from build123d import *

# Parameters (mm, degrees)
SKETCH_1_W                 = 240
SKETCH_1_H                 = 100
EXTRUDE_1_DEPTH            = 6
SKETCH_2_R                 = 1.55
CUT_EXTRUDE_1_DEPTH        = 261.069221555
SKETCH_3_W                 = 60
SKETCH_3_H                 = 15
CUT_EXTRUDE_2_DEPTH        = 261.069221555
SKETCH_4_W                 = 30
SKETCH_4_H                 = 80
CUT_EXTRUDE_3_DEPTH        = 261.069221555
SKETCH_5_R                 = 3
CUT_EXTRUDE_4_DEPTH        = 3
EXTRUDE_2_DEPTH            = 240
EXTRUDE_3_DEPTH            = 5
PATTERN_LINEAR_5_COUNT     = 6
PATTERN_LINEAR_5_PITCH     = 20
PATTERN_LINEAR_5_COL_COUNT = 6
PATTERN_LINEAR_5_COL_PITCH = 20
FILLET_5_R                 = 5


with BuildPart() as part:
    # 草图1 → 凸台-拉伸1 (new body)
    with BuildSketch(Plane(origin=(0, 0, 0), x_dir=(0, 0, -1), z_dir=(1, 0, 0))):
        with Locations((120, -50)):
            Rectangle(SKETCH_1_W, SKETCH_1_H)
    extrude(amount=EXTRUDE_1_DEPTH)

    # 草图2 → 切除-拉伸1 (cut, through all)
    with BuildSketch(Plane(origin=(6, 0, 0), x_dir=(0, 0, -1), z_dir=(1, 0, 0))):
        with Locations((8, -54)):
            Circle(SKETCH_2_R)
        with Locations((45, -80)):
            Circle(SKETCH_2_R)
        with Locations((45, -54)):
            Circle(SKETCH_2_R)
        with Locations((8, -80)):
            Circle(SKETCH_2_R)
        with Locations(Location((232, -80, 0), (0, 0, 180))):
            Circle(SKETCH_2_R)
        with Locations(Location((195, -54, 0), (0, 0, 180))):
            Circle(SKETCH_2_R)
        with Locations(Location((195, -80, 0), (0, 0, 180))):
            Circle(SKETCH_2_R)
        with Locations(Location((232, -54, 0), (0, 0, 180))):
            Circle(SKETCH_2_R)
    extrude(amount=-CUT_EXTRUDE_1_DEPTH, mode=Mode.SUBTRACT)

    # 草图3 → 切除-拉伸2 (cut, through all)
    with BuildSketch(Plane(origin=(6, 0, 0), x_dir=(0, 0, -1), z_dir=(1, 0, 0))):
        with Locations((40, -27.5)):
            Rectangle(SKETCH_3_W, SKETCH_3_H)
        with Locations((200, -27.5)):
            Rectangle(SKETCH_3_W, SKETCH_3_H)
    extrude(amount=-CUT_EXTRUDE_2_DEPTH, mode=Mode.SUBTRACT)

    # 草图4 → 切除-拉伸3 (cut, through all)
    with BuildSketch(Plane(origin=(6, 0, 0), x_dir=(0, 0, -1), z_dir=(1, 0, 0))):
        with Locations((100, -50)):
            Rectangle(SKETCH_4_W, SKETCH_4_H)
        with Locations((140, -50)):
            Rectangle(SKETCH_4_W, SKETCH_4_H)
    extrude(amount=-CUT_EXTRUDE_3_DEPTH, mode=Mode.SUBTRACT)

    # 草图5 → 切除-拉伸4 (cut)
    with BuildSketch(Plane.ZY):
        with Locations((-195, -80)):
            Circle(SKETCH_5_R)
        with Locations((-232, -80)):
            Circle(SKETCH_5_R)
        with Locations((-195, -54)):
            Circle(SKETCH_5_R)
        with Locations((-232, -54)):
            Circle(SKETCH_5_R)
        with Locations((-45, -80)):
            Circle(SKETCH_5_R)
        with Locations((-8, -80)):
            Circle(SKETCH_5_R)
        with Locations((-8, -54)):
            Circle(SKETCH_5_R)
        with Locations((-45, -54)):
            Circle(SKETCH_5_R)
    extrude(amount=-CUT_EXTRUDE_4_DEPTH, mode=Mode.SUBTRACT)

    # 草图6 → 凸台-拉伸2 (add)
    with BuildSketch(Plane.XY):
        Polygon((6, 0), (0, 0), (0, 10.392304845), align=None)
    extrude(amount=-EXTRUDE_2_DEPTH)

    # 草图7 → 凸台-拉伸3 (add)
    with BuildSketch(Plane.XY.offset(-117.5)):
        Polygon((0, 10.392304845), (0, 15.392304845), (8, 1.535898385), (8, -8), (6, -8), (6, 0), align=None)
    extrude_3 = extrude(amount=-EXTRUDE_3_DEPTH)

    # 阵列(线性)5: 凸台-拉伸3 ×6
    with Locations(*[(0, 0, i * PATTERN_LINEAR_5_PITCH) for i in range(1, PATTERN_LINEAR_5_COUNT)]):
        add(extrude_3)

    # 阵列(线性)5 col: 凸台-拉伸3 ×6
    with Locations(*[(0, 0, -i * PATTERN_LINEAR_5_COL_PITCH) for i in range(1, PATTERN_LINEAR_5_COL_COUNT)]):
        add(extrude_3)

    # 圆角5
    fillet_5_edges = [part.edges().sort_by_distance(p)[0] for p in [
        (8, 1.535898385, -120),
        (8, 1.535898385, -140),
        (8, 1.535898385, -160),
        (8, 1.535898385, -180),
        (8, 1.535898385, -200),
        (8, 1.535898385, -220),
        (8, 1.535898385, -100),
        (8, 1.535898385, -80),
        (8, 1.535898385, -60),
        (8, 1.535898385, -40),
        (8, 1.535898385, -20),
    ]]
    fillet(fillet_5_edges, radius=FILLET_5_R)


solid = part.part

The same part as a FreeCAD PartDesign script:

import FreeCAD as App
import Part
import Sketcher
from FreeCAD import Vector
Q = App.Units.Quantity


def edges_at(feature, points):
    """Names of the edges that pass closest to the given points."""
    edges = feature.Shape.Edges
    near = lambda p: min(range(len(edges)), key=lambda i: edges[i].distToShape(Part.Vertex(*p))[0])
    return sorted({f"Edge{near(p) + 1}" for p in points})


def add_polygon(sketch, points):
    """Adds a closed chain of lines whose ends are joined by coincident constraints."""
    first, n = sketch.GeometryCount, len(points)
    for a, b in zip(points, points[1:] + points[:1]):
        sketch.addGeometry(Part.LineSegment(App.Vector(*a, 0), App.Vector(*b, 0)), False)
    for i in range(n):
        sketch.addConstraint(Sketcher.Constraint("Coincident", first + i, 2, first + (i + 1) % n, 1))

doc = App.newDocument("Part")
params = doc.addObject("Spreadsheet::Sheet", "Params")
for row, (alias, value) in enumerate([
    ("sketch1_width", "100 mm"),
    ("sketch1_height", "240 mm"),
    ("pad1_length", "6 mm"),
    ("sketch2_diameter", "3.1 mm"),
    ("sketch3_width", "15 mm"),
    ("sketch3_height", "60 mm"),
    ("sketch4_width", "80 mm"),
    ("sketch4_height", "30 mm"),
    ("sketch5_diameter", "6 mm"),
    ("pocket4_length", "3 mm"),
    ("sketch6_width", "6 mm"),
    ("pad2_length", "240 mm"),
    ("sketch7_width", "2 mm"),
    ("sketch7_height", "5 mm"),
    ("sketch7_height2", "8 mm"),
    ("sketch7_length", "12 mm"),
    ("pad3_length", "5 mm"),
    ("linearpattern_pitch", "20 mm"),
    ("linearpattern2_pitch", "20 mm"),
    ("fillet_radius", "5 mm"),
], start=1):
    params.set(f"A{row}", alias)
    params.set(f"B{row}", "=" + value)
    params.setAlias(f"B{row}", alias)

body = doc.addObject("PartDesign::Body", "Body")

# Sketch on YZ plane
sketch1 = body.newObject("Sketcher::SketchObject", "Sketch")
sketch1.AttachmentSupport = (doc.getObject("YZ_Plane"), [""])
sketch1.MapMode = "FlatFace"
add_polygon(sketch1, [(0, 0), (-100, 0), (-100, -240), (0, -240)])  # lines 0-3
sketch1.addConstraint([
    Sketcher.Constraint("Horizontal", 0),
    Sketcher.Constraint("Vertical", 1),
    Sketcher.Constraint("Horizontal", 2),
    Sketcher.Constraint("Vertical", 3),
    Sketcher.Constraint("Coincident", 3, 2, -1, 1),
    Sketcher.Constraint("DistanceX", 0, 2, 0, 1, 100.0),
    Sketcher.Constraint("DistanceY", 1, 2, 1, 1, 240.0),
])
sketch1.setExpression("Constraints[9]", "Params.sketch1_width")
sketch1.setExpression("Constraints[10]", "Params.sketch1_height")
pad1 = body.newObject("PartDesign::Pad", "Pad")
pad1.Profile = sketch1
pad1.setExpression("Length", "Params.pad1_length")

# Sketch on YZ plane
sketch2 = body.newObject("Sketcher::SketchObject", "Sketch001")
sketch2.AttachmentSupport = (doc.getObject("YZ_Plane"), [""])
sketch2.MapMode = "FlatFace"
sketch2.AttachmentOffset = App.Placement(Vector(0, 0, 6), App.Rotation())
sketch2.addGeometry([
    Part.Circle(Vector(-54, -8, 0), Vector(0, 0, 1), 1.6),  # 0
    Part.Circle(Vector(-80, -45, 0), Vector(0, 0, 1), 1.6),  # 1
    Part.Circle(Vector(-54, -45, 0), Vector(0, 0, 1), 1.6),  # 2
    Part.Circle(Vector(-80, -8, 0), Vector(0, 0, 1), 1.6),  # 3
    Part.Circle(Vector(-80, -232, 0), Vector(0, 0, 1), 1.6),  # 4
    Part.Circle(Vector(-54, -195, 0), Vector(0, 0, 1), 1.6),  # 5
    Part.Circle(Vector(-80, -195, 0), Vector(0, 0, 1), 1.6),  # 6
    Part.Circle(Vector(-54, -232, 0), Vector(0, 0, 1), 1.6),  # 7
], False)
sketch2.addConstraint([
    Sketcher.Constraint("Equal", 0, 1),
    Sketcher.Constraint("Equal", 1, 2),
    Sketcher.Constraint("Equal", 2, 3),
    Sketcher.Constraint("Equal", 3, 4),
    Sketcher.Constraint("Equal", 4, 5),
    Sketcher.Constraint("Equal", 5, 6),
    Sketcher.Constraint("Equal", 6, 7),
    Sketcher.Constraint("Horizontal", 1, 3, 2, 3),
    Sketcher.Constraint("Horizontal", 0, 3, 3, 3),
    Sketcher.Constraint("Horizontal", 5, 3, 6, 3),
    Sketcher.Constraint("Horizontal", 4, 3, 7, 3),
    Sketcher.Constraint("Vertical", 0, 3, 2, 3),
    Sketcher.Constraint("Vertical", 1, 3, 3, 3),
    Sketcher.Constraint("Vertical", 3, 3, 4, 3),
    Sketcher.Constraint("Vertical", 2, 3, 5, 3),
    Sketcher.Constraint("Vertical", 4, 3, 6, 3),
    Sketcher.Constraint("Vertical", 5, 3, 7, 3),
    Sketcher.Constraint("Diameter", 0, 3.1),
    Sketcher.Constraint("DistanceX", 0, 3, -1, 1, 54.0),
    Sketcher.Constraint("DistanceY", 0, 3, -1, 1, 8.0),
    Sketcher.Constraint("DistanceX", 1, 3, -1, 1, 80.0),
    Sketcher.Constraint("DistanceY", 1, 3, -1, 1, 45.0),
    Sketcher.Constraint("DistanceY", 4, 3, -1, 1, 232.0),
    Sketcher.Constraint("DistanceY", 5, 3, -1, 1, 195.0),
])
sketch2.setExpression("Constraints[17]", "Params.sketch2_diameter")
pocket1 = body.newObject("PartDesign::Pocket", "Pocket")
pocket1.Profile = sketch2
pocket1.Type = "ThroughAll"

# Sketch on YZ plane
sketch3 = body.newObject("Sketcher::SketchObject", "Sketch002")
sketch3.AttachmentSupport = (doc.getObject("YZ_Plane"), [""])
sketch3.MapMode = "FlatFace"
sketch3.AttachmentOffset = App.Placement(Vector(0, 0, 6), App.Rotation())
add_polygon(sketch3, [(-20, -10), (-35, -10), (-35, -70), (-20, -70)])  # lines 0-3
add_polygon(sketch3, [(-20, -170), (-35, -170), (-35, -230), (-20, -230)])  # lines 4-7
sketch3.addConstraint([
    Sketcher.Constraint("Horizontal", 0),
    Sketcher.Constraint("Vertical", 1),
    Sketcher.Constraint("Horizontal", 2),
    Sketcher.Constraint("Vertical", 3),
    Sketcher.Constraint("Horizontal", 4),
    Sketcher.Constraint("Vertical", 5),
    Sketcher.Constraint("Horizontal", 6),
    Sketcher.Constraint("Vertical", 7),
    Sketcher.Constraint("Vertical", 1, 2, 4, 2),
    Sketcher.Constraint("Vertical", 3, 2, 6, 2),
    Sketcher.Constraint("Equal", 3, 5),
    Sketcher.Constraint("DistanceX", 0, 2, 0, 1, 15.0),
    Sketcher.Constraint("DistanceY", 1, 2, 1, 1, 60.0),
    Sketcher.Constraint("DistanceX", 0, 2, -1, 1, 35.0),
    Sketcher.Constraint("DistanceY", 0, 2, -1, 1, 10.0),
    Sketcher.Constraint("DistanceY", 4, 2, -1, 1, 170.0),
])
sketch3.setExpression("Constraints[19]", "Params.sketch3_width")
sketch3.setExpression("Constraints[20]", "Params.sketch3_height")
pocket2 = body.newObject("PartDesign::Pocket", "Pocket001")
pocket2.Profile = sketch3
pocket2.Type = "ThroughAll"

# Sketch on YZ plane
sketch4 = body.newObject("Sketcher::SketchObject", "Sketch003")
sketch4.AttachmentSupport = (doc.getObject("YZ_Plane"), [""])
sketch4.MapMode = "FlatFace"
sketch4.AttachmentOffset = App.Placement(Vector(0, 0, 6), App.Rotation())
add_polygon(sketch4, [(-10, -85), (-90, -85), (-90, -115), (-10, -115)])  # lines 0-3
add_polygon(sketch4, [(-10, -125), (-90, -125), (-90, -155), (-10, -155)])  # lines 4-7
sketch4.addConstraint([
    Sketcher.Constraint("Horizontal", 0),
    Sketcher.Constraint("Vertical", 1),
    Sketcher.Constraint("Horizontal", 2),
    Sketcher.Constraint("Vertical", 3),
    Sketcher.Constraint("Horizontal", 4),
    Sketcher.Constraint("Vertical", 5),
    Sketcher.Constraint("Horizontal", 6),
    Sketcher.Constraint("Vertical", 7),
    Sketcher.Constraint("Vertical", 1, 2, 4, 2),
    Sketcher.Constraint("Vertical", 3, 2, 6, 2),
    Sketcher.Constraint("Equal", 3, 5),
    Sketcher.Constraint("DistanceX", 0, 2, 0, 1, 80.0),
    Sketcher.Constraint("DistanceY", 1, 2, 1, 1, 30.0),
    Sketcher.Constraint("DistanceX", 0, 2, -1, 1, 90.0),
    Sketcher.Constraint("DistanceY", 0, 2, -1, 1, 85.0),
    Sketcher.Constraint("DistanceY", 4, 2, -1, 1, 125.0),
])
sketch4.setExpression("Constraints[19]", "Params.sketch4_width")
sketch4.setExpression("Constraints[20]", "Params.sketch4_height")
pocket3 = body.newObject("PartDesign::Pocket", "Pocket002")
pocket3.Profile = sketch4
pocket3.Type = "ThroughAll"

# Sketch on YZ plane
sketch5 = body.newObject("Sketcher::SketchObject", "Sketch004")
sketch5.AttachmentSupport = (doc.getObject("YZ_Plane"), [""])
sketch5.MapMode = "FlatFace"
sketch5.addGeometry([
    Part.Circle(Vector(-80, -195, 0), Vector(0, 0, 1), 3),  # 0
    Part.Circle(Vector(-80, -232, 0), Vector(0, 0, 1), 3),  # 1
    Part.Circle(Vector(-54, -195, 0), Vector(0, 0, 1), 3),  # 2
    Part.Circle(Vector(-54, -232, 0), Vector(0, 0, 1), 3),  # 3
    Part.Circle(Vector(-80, -45, 0), Vector(0, 0, 1), 3),  # 4
    Part.Circle(Vector(-80, -8, 0), Vector(0, 0, 1), 3),  # 5
    Part.Circle(Vector(-54, -8, 0), Vector(0, 0, 1), 3),  # 6
    Part.Circle(Vector(-54, -45, 0), Vector(0, 0, 1), 3),  # 7
], False)
sketch5.addConstraint([
    Sketcher.Constraint("Equal", 0, 1),
    Sketcher.Constraint("Equal", 1, 2),
    Sketcher.Constraint("Equal", 2, 3),
    Sketcher.Constraint("Equal", 3, 4),
    Sketcher.Constraint("Equal", 4, 5),
    Sketcher.Constraint("Equal", 5, 6),
    Sketcher.Constraint("Equal", 6, 7),
    Sketcher.Constraint("Horizontal", 0, 3, 2, 3),
    Sketcher.Constraint("Horizontal", 1, 3, 3, 3),
    Sketcher.Constraint("Horizontal", 5, 3, 6, 3),
    Sketcher.Constraint("Horizontal", 4, 3, 7, 3),
    Sketcher.Constraint("Vertical", 0, 3, 1, 3),
    Sketcher.Constraint("Vertical", 2, 3, 3, 3),
    Sketcher.Constraint("Vertical", 1, 3, 4, 3),
    Sketcher.Constraint("Vertical", 4, 3, 5, 3),
    Sketcher.Constraint("Vertical", 3, 3, 6, 3),
    Sketcher.Constraint("Vertical", 6, 3, 7, 3),
    Sketcher.Constraint("Diameter", 0, 6.0),
    Sketcher.Constraint("DistanceX", 0, 3, -1, 1, 80.0),
    Sketcher.Constraint("DistanceY", 0, 3, -1, 1, 195.0),
    Sketcher.Constraint("DistanceY", 1, 3, -1, 1, 232.0),
    Sketcher.Constraint("DistanceX", 2, 3, -1, 1, 54.0),
    Sketcher.Constraint("DistanceY", 4, 3, -1, 1, 45.0),
    Sketcher.Constraint("DistanceY", 5, 3, -1, 1, 8.0),
])
sketch5.setExpression("Constraints[17]", "Params.sketch5_diameter")
pocket4 = body.newObject("PartDesign::Pocket", "Pocket003")
pocket4.Profile = sketch5
pocket4.setExpression("Length", "Params.pocket4_length")
pocket4.Reversed = True

# Sketch on XY plane
sketch6 = body.newObject("Sketcher::SketchObject", "Sketch005")
sketch6.AttachmentSupport = (doc.getObject("XY_Plane"), [""])
sketch6.MapMode = "FlatFace"
add_polygon(sketch6, [(0, 0), (6, 0), (0, 10)])  # lines 0-2
sketch6.addConstraint([
    Sketcher.Constraint("Horizontal", 0),
    Sketcher.Constraint("Vertical", 2),
    Sketcher.Constraint("Coincident", 2, 2, -1, 1),
    Sketcher.Constraint("DistanceX", 0, 1, 0, 2, 6.0),
    Sketcher.Constraint("Angle", 1, Q("120 deg")),
])
sketch6.setExpression("Constraints[6]", "Params.sketch6_width")
pad2 = body.newObject("PartDesign::Pad", "Pad001")
pad2.Profile = sketch6
pad2.setExpression("Length", "Params.pad2_length")
pad2.Reversed = True

# Sketch on XY plane
sketch7 = body.newObject("Sketcher::SketchObject", "Sketch006")
sketch7.AttachmentSupport = (doc.getObject("XY_Plane"), [""])
sketch7.MapMode = "FlatFace"
sketch7.AttachmentOffset = App.Placement(Vector(0, 0, -117.5), App.Rotation())
add_polygon(sketch7, [(0, 15.4), (0, 10.4), (6, 0), (6, -8), (8, -8), (8, 1.5)])  # lines 0-5
sketch7.addConstraint([
    Sketcher.Constraint("Vertical", 0),
    Sketcher.Constraint("Vertical", 2),
    Sketcher.Constraint("Horizontal", 3),
    Sketcher.Constraint("Vertical", 4),
    Sketcher.Constraint("PointOnObject", 0, 2, -2),
    Sketcher.Constraint("PointOnObject", 1, 2, -1),
    Sketcher.Constraint("Parallel", 1, 5),
    Sketcher.Constraint("DistanceX", 3, 1, 3, 2, 2.0),
    Sketcher.Constraint("DistanceY", 0, 2, 0, 1, 5.0),
    Sketcher.Constraint("DistanceY", 2, 2, 2, 1, 8.0),
    Sketcher.Constraint("Angle", 1, Q("-60 deg")),
    Sketcher.Constraint("Distance", 1, 12.0),
])
sketch7.setExpression("Constraints[13]", "Params.sketch7_width")
sketch7.setExpression("Constraints[14]", "Params.sketch7_height")
sketch7.setExpression("Constraints[15]", "Params.sketch7_height2")
sketch7.setExpression("Constraints[17]", "Params.sketch7_length")
pad3 = body.newObject("PartDesign::Pad", "Pad002")
pad3.Profile = sketch7
pad3.setExpression("Length", "Params.pad3_length")
pad3.Reversed = True
doc.recompute()

linearpattern = body.newObject("PartDesign::LinearPattern", "LinearPattern")
linearpattern.Originals = [pad3]
linearpattern.Direction = (doc.getObject("Z_Axis"), [""])
linearpattern.Mode = "offset"
linearpattern.setExpression("Offset", "Params.linearpattern_pitch")
linearpattern.Occurrences = 6
body.Tip = linearpattern
doc.recompute()

linearpattern2 = body.newObject("PartDesign::LinearPattern", "LinearPattern001")
linearpattern2.Originals = [pad3]
linearpattern2.Direction = (doc.getObject("Z_Axis"), [""])
linearpattern2.Mode = "offset"
linearpattern2.setExpression("Offset", "Params.linearpattern2_pitch")
linearpattern2.Occurrences = 6
linearpattern2.Reversed = True
body.Tip = linearpattern2
doc.recompute()

fillet = body.newObject("PartDesign::Fillet", "Fillet")
fillet.Base = (linearpattern2, edges_at(linearpattern2, [
    (8, 1.536, -120),
    (8, 1.536, -140),
    (8, 1.536, -160),
    (8, 1.536, -180),
    (8, 1.536, -200),
    (8, 1.536, -220),
    (8, 1.536, -100),
    (8, 1.536, -80),
    (8, 1.536, -60),
    (8, 1.536, -40),
    (8, 1.536, -20),
]))
fillet.setExpression("Radius", "Params.fillet_radius")

doc.recompute()
